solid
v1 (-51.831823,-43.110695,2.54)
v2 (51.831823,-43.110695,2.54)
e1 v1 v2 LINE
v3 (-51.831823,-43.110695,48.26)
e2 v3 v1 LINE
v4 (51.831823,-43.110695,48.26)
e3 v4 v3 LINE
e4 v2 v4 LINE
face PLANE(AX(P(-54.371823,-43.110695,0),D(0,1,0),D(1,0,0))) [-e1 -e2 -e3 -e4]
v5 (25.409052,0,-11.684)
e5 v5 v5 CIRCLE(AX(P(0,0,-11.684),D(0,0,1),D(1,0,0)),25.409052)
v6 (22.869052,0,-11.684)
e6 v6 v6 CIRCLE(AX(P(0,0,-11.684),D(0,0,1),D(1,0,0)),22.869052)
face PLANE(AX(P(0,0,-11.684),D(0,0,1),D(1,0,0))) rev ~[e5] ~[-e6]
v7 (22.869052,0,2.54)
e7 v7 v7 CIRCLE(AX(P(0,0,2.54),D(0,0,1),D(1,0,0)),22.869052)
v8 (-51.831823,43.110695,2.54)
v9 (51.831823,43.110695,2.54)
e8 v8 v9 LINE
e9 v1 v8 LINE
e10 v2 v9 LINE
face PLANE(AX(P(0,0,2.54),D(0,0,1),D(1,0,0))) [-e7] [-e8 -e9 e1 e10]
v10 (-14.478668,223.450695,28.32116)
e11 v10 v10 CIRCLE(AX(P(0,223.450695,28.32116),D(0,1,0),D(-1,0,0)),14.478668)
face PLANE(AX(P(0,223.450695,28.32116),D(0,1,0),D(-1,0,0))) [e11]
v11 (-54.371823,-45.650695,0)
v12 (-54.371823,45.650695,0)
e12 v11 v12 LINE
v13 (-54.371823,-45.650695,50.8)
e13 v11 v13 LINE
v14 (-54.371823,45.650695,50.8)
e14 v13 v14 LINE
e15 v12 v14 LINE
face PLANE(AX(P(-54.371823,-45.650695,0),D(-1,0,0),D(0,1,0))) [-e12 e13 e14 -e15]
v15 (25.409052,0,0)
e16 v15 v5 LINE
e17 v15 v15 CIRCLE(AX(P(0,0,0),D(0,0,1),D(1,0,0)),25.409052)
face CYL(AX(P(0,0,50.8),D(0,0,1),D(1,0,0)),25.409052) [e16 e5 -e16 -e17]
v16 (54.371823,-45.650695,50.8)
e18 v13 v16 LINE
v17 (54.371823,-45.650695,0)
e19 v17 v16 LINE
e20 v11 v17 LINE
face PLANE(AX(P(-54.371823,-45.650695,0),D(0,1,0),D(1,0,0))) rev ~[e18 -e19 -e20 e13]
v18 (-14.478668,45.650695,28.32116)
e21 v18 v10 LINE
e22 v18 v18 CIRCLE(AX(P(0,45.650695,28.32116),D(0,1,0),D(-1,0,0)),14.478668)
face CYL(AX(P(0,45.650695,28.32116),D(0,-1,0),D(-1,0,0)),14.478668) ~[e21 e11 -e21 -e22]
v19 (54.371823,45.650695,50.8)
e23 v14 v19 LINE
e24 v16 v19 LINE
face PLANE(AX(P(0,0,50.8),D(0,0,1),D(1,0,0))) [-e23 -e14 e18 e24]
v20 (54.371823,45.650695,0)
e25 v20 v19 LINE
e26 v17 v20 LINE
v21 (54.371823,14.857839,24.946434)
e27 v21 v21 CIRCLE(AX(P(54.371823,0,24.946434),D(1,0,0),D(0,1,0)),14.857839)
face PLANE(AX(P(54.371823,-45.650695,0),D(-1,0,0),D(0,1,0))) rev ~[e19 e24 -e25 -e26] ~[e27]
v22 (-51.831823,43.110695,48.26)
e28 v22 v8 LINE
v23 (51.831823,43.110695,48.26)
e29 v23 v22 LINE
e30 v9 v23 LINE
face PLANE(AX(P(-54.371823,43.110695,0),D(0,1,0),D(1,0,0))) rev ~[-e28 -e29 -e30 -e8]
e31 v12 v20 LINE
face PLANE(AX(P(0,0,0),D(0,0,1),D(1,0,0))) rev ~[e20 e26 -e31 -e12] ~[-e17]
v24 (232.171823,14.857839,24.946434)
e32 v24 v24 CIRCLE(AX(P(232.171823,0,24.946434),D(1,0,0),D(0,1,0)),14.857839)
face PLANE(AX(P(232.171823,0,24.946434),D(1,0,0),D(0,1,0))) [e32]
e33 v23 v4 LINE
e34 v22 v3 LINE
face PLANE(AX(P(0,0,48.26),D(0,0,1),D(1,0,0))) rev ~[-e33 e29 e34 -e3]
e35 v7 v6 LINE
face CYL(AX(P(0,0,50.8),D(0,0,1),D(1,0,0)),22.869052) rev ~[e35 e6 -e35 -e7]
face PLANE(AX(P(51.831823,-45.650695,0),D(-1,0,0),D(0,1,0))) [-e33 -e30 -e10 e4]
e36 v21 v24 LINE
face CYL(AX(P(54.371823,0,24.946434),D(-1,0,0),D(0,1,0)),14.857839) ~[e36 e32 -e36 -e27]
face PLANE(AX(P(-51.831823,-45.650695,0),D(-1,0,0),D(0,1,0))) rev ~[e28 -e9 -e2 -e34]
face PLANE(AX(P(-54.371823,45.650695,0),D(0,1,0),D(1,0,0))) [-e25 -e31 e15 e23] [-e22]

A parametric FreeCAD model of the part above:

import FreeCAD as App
import Part
import Sketcher
Q = App.Units.Quantity


def faces_at(feature, points):
    """Names of the faces that lie closest to the given points."""
    faces = feature.Shape.Faces
    near = lambda p: min(range(len(faces)), key=lambda i: faces[i].distToShape(Part.Vertex(*p))[0])
    return sorted({f"Face{near(p) + 1}" for p in points})


def add_polygon(sketch, points):
    """Adds a closed chain of lines whose ends are joined by coincident constraints."""
    first, n = sketch.GeometryCount, len(points)
    for a, b in zip(points, points[1:] + points[:1]):
        sketch.addGeometry(Part.LineSegment(App.Vector(*a, 0), App.Vector(*b, 0)), False)
    for i in range(n):
        sketch.addConstraint(Sketcher.Constraint("Coincident", first + i, 2, first + (i + 1) % n, 1))

doc = App.newDocument("Part")
body = doc.addObject("PartDesign::Body", "Body")

sketch1 = body.newObject("Sketcher::SketchObject", "Sketch")
sketch1.AttachmentSupport = (doc.getObject("XY_Plane"), [""])
sketch1.MapMode = "FlatFace"
add_polygon(sketch1, [(-54.371823, 45.650695), (-54.371823, -45.650695), (54.371823, -45.650695), (54.371823, 45.650695)])
sketch1.addConstraint([
    Sketcher.Constraint("Vertical", 0),
    Sketcher.Constraint("Horizontal", 1),
    Sketcher.Constraint("Vertical", 2),
    Sketcher.Constraint("Horizontal", 3),
    Sketcher.Constraint("Symmetric", 0, 2, 2, 2, -1, 1),
    Sketcher.Constraint("DistanceY", 0, 2, 0, 1, Q("91.301389 mm")),
    Sketcher.Constraint("DistanceX", 1, 1, 1, 2, Q("108.743645 mm")),
])
pad1 = body.newObject("PartDesign::Pad", "Pad")
pad1.Profile = sketch1
pad1.Length = Q("2 in")

sketch2 = body.newObject("Sketcher::SketchObject", "Sketch001")
sketch2.AttachmentSupport = (doc.getObject("XY_Plane"), [""])
sketch2.MapMode = "FlatFace"
sketch2.AttachmentOffset = App.Placement(App.Vector(0, 0, 2 * 25.4), App.Rotation())
sketch2.addGeometry(Part.Circle(App.Vector(0, 0, 0), App.Vector(0, 0, 1), 25.409052), False)
sketch2.addConstraint([
    Sketcher.Constraint("Coincident", 0, 3, -1, 1),
    Sketcher.Constraint("Diameter", 0, Q("50.818103 mm")),
])
pad2 = body.newObject("PartDesign::Pad", "Pad001")
pad2.Profile = sketch2
pad2.Length = Q("2.46 in")
pad2.Reversed = True
doc.recompute()

thickness = body.newObject("PartDesign::Thickness", "Thickness")
thickness.Base = (pad2, faces_at(pad2, [(0, 0, -11.684)]))
thickness.Value = Q("0.1 in")
thickness.Reversed = True
thickness.Join = "Intersection"

sketch3 = body.newObject("Sketcher::SketchObject", "Sketch002")
sketch3.AttachmentSupport = (doc.getObject("YZ_Plane"), [""])
sketch3.MapMode = "FlatFace"
sketch3.AttachmentOffset = App.Placement(App.Vector(0, 0, 54.371823), App.Rotation())
sketch3.addGeometry(Part.Circle(App.Vector(0, 24.946434, 0), App.Vector(0, 0, 1), 14.857839), False)
sketch3.addConstraint([
    Sketcher.Constraint("PointOnObject", 0, 3, -2),
    Sketcher.Constraint("Diameter", 0, Q("29.715678 mm")),
    Sketcher.Constraint("DistanceY", -1, 1, 0, 3, Q("24.946434 mm")),
])
pad3 = body.newObject("PartDesign::Pad", "Pad002")
pad3.Profile = sketch3
pad3.Length = Q("7 in")

sketch4 = body.newObject("Sketcher::SketchObject", "Sketch003")
sketch4.AttachmentSupport = (doc.getObject("XZ_Plane"), [""])
sketch4.MapMode = "FlatFace"
sketch4.AttachmentOffset = App.Placement(App.Vector(0, 0, -45.650695), App.Rotation())
sketch4.addGeometry(Part.Circle(App.Vector(0, 28.32116, 0), App.Vector(0, 0, 1), 14.478668), False)
sketch4.addConstraint([
    Sketcher.Constraint("PointOnObject", 0, 3, -2),
    Sketcher.Constraint("Diameter", 0, Q("28.957336 mm")),
    Sketcher.Constraint("DistanceY", -1, 1, 0, 3, Q("28.32116 mm")),
])
pad4 = body.newObject("PartDesign::Pad", "Pad003")
pad4.Profile = sketch4
pad4.Length = Q("7 in")
pad4.Reversed = True

doc.recompute()
